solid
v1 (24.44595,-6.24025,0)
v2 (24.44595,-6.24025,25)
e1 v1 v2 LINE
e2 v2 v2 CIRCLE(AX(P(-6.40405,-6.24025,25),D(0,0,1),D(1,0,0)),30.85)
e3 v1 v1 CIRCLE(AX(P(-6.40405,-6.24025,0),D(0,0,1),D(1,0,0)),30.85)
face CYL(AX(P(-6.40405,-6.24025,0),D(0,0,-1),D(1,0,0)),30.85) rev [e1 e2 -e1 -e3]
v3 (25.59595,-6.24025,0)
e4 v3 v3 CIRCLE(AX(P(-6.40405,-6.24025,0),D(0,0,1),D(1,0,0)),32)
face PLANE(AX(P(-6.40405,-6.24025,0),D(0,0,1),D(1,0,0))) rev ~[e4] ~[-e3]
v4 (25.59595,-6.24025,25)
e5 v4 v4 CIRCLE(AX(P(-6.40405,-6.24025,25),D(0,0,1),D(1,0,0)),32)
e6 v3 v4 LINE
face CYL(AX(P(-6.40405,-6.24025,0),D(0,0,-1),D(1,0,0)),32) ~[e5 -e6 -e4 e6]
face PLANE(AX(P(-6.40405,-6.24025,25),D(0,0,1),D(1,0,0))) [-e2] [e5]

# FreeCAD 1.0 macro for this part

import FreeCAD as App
import Part
import Sketcher

V = App.Vector
Q = App.Units.Quantity

doc = App.newDocument("Part")
body = doc.addObject("PartDesign::Body", "Body")

# Sketch on XY plane
sketch1 = body.newObject("Sketcher::SketchObject", "Sketch")
sketch1.AttachmentSupport = (doc.getObject("XY_Plane"), [""])
sketch1.MapMode = "FlatFace"
sketch1.addGeometry(Part.Circle(V(-6, -6, 0), V(0, 0, 1), 32), False)
sketch1.addGeometry(Part.Circle(V(-6, -6, 0), V(0, 0, 1), 31), False)
sketch1.addConstraint(Sketcher.Constraint("Coincident", 1, 3, 0, 3))
sketch1.addConstraint(Sketcher.Constraint("Diameter", 0, Q("64 mm")))
sketch1.addConstraint(Sketcher.Constraint("Diameter", 1, Q("61.7 mm")))
sketch1.addConstraint(Sketcher.Constraint("DistanceX", 0, 3, -1, 1, Q("6.40405 mm")))
sketch1.addConstraint(Sketcher.Constraint("DistanceY", 0, 3, -1, 1, Q("6.24025 mm")))
pad1 = body.newObject("PartDesign::Pad", "Pad")
pad1.Profile = sketch1
pad1.Length = 25

doc.recompute()
